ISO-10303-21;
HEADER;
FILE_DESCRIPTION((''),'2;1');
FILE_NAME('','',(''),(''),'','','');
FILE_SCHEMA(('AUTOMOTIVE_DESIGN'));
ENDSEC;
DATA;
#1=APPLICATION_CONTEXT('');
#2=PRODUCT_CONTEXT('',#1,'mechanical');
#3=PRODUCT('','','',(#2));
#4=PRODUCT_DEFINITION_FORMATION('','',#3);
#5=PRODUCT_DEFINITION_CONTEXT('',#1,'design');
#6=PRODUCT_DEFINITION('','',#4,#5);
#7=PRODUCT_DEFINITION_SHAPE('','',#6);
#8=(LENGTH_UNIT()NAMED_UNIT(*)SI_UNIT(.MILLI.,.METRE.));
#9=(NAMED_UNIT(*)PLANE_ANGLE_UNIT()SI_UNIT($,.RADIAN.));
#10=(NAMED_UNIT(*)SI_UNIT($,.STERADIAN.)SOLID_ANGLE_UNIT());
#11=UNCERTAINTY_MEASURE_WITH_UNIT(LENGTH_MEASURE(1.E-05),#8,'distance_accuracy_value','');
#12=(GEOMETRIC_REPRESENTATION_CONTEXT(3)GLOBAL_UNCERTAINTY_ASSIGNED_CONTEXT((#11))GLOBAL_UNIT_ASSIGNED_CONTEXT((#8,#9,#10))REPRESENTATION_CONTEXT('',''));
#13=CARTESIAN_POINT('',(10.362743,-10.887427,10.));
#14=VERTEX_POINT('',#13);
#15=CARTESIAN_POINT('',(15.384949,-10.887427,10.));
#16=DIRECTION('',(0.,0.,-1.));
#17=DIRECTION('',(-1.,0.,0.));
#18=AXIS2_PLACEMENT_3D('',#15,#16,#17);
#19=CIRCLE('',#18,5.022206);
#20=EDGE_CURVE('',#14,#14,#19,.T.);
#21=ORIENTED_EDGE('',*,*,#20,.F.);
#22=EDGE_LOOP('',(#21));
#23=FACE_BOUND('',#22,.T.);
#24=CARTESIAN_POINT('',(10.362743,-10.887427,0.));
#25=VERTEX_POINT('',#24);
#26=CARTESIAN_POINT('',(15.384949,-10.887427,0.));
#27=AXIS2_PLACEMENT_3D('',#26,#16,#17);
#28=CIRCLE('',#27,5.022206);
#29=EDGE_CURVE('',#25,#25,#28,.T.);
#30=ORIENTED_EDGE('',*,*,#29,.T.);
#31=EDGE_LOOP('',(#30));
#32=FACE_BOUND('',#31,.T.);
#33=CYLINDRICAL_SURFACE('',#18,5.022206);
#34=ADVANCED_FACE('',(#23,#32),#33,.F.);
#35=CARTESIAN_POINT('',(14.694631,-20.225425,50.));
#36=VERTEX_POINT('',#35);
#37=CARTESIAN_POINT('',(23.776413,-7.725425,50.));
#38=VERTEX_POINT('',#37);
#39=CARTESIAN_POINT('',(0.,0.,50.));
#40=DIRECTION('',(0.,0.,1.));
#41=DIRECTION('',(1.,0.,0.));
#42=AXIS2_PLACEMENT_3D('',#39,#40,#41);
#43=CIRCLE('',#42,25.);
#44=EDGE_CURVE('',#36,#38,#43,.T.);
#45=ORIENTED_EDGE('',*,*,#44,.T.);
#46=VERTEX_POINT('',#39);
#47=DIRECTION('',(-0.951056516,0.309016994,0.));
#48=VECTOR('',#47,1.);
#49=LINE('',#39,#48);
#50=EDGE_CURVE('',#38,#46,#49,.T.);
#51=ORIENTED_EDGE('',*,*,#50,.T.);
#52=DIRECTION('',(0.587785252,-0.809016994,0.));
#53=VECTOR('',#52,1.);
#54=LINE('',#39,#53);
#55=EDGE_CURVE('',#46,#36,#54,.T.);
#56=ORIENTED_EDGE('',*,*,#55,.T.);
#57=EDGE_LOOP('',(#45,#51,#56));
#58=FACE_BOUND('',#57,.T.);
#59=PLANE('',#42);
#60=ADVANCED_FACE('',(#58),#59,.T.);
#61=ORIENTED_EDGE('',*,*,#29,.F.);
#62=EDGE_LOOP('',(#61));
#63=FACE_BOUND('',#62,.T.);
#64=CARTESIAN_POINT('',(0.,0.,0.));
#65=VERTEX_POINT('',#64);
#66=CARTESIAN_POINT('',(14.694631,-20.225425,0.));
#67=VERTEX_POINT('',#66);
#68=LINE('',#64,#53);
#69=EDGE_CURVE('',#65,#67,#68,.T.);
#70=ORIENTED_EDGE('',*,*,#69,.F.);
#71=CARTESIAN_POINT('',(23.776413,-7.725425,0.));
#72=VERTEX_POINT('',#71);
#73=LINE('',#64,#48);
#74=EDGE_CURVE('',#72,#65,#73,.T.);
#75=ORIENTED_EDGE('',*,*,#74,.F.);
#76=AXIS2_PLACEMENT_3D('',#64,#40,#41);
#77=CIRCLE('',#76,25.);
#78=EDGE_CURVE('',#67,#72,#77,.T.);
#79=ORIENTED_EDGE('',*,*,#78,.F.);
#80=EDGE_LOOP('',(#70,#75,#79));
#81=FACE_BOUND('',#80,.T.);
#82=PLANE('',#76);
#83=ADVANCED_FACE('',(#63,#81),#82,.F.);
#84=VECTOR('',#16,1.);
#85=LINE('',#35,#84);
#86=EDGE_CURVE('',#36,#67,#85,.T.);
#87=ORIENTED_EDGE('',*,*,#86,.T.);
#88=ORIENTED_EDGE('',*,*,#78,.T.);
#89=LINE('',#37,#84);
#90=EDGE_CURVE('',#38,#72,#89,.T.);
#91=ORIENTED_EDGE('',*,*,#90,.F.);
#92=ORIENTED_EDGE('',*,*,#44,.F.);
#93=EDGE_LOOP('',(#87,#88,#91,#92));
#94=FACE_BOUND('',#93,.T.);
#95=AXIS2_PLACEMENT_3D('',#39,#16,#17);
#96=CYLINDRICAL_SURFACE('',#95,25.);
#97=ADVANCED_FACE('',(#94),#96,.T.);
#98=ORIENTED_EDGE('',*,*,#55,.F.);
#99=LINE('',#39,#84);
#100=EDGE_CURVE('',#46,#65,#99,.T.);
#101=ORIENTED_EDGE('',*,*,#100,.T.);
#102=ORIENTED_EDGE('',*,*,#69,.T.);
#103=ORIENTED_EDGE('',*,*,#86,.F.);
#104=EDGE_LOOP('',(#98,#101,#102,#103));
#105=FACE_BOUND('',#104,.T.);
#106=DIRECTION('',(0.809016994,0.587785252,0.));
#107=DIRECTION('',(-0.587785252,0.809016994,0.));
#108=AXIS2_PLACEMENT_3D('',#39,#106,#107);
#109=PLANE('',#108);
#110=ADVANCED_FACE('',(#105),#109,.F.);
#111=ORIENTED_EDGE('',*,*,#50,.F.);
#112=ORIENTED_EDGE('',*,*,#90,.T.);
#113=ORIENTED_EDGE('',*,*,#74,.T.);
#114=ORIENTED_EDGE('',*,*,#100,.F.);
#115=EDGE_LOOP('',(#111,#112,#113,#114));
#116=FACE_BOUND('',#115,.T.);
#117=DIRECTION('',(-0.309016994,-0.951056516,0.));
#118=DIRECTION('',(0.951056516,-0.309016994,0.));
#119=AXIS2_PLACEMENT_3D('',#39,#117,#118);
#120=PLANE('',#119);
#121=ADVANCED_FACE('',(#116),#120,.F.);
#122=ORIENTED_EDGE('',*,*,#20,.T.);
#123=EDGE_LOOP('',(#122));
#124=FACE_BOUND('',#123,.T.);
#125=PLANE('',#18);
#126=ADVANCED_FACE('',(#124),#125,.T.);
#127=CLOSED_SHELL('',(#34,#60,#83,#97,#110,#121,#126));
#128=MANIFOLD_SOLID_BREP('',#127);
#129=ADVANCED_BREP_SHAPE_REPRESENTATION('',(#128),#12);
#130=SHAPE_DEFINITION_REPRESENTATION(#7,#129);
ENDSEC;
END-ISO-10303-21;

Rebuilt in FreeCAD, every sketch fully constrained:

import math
import FreeCAD as App
import Part
import Sketcher
from FreeCAD import Vector
Q = App.Units.Quantity

doc = App.newDocument("Part")
params = doc.addObject("Spreadsheet::Sheet", "Params")
for row, (alias, value) in enumerate([
    ("sketch1_radius", "25 mm"),
    ("pad1_length", "50 mm"),
    ("pocket1_length", "10 mm"),
], start=1):
    params.set(f"A{row}", alias)
    params.set(f"B{row}", "=" + value)
    params.setAlias(f"B{row}", alias)

body = doc.addObject("PartDesign::Body", "Body")

sketch1 = body.newObject("Sketcher::SketchObject", "Sketch")
sketch1.AttachmentSupport = (doc.getObject("XY_Plane"), [""])
sketch1.MapMode = "FlatFace"
sketch1.addGeometry([
    Part.LineSegment(Vector(0, 0, 0), Vector(15, -20, 0)),
    Part.ArcOfCircle(Part.Circle(Vector(0, 0, 0), Vector(0, 0, 1), 25), math.radians(-54), math.radians(-18)),
    Part.LineSegment(Vector(24, -8, 0), Vector(0, 0, 0)),
], False)
sketch1.addConstraint([
    Sketcher.Constraint("Coincident", 0, 2, 1, 1),
    Sketcher.Constraint("Coincident", 1, 2, 2, 1),
    Sketcher.Constraint("Coincident", 2, 2, 0, 1),
    Sketcher.Constraint("Coincident", 1, 3, -1, 1),
    Sketcher.Constraint("Coincident", 2, 2, -1, 1),
    Sketcher.Constraint("Radius", 1, Q("25 mm")),
    Sketcher.Constraint("Angle", 0, Q("-54 deg")),
    Sketcher.Constraint("Angle", 2, Q("162 deg")),
])
sketch1.setExpression("Constraints[5]", "Params.sketch1_radius")
pad1 = body.newObject("PartDesign::Pad", "Pad")
pad1.Profile = sketch1
pad1.setExpression("Length", "Params.pad1_length")

sketch2 = body.newObject("Sketcher::SketchObject", "Sketch001")
sketch2.AttachmentSupport = (doc.getObject("XY_Plane"), [""])
sketch2.MapMode = "FlatFace"
sketch2.addGeometry(Part.Circle(Vector(15, -11, 0), Vector(0, 0, 1), 5), False)
sketch2.addConstraint([
    Sketcher.Constraint("Diameter", 0, Q("10.044412 mm")),
    Sketcher.Constraint("DistanceX", -1, 1, 0, 3, Q("15.384949 mm")),
    Sketcher.Constraint("DistanceY", 0, 3, -1, 1, Q("10.887427 mm")),
])
pocket1 = body.newObject("PartDesign::Pocket", "Pocket")
pocket1.Profile = sketch2
pocket1.setExpression("Length", "Params.pocket1_length")
pocket1.Reversed = True

doc.recompute()
